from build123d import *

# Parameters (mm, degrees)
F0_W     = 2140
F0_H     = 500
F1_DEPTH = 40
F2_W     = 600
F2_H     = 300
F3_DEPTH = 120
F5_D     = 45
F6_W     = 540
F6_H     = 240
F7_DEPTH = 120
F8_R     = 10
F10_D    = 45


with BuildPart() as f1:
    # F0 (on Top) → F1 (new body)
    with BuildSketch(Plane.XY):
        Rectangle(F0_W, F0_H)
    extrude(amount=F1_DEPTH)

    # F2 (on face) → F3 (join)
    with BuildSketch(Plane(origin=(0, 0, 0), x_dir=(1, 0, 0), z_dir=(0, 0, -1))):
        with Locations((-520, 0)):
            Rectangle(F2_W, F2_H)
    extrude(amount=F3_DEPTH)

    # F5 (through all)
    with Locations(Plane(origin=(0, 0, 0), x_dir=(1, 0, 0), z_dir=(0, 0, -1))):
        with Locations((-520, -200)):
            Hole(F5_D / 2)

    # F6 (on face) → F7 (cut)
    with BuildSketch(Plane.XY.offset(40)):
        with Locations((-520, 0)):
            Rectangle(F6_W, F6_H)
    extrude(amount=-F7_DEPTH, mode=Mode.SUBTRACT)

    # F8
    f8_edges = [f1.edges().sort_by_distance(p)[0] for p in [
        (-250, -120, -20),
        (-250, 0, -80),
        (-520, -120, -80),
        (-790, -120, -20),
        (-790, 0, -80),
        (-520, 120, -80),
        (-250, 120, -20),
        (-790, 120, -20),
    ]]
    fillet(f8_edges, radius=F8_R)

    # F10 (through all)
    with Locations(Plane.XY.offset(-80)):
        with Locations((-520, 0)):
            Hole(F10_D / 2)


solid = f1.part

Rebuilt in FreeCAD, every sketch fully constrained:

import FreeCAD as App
import Part
import Sketcher
from FreeCAD import Vector
Q = App.Units.Quantity


def edges_at(feature, points):
    """Names of the edges that pass closest to the given points."""
    edges = feature.Shape.Edges
    near = lambda p: min(range(len(edges)), key=lambda i: edges[i].distToShape(Part.Vertex(*p))[0])
    return sorted({f"Edge{near(p) + 1}" for p in points})

doc = App.newDocument("Part")
params = doc.addObject("Spreadsheet::Sheet", "Params")
for row, (alias, value) in enumerate([
    ("sketch1_width", "2140 mm"),
    ("sketch1_height", "500 mm"),
    ("pad1_length", "40 mm"),
    ("sketch2_width", "600 mm"),
    ("sketch2_height", "300 mm"),
    ("pad2_length", "120 mm"),
    ("sketch3_diameter", "45 mm"),
    ("hole_diameter", "45 mm"),
    ("sketch4_width", "540 mm"),
    ("sketch4_height", "240 mm"),
    ("pocket1_length", "120 mm"),
    ("fillet_radius", "10 mm"),
    ("sketch5_diameter", "45 mm"),
    ("hole2_diameter", "45 mm"),
], start=1):
    params.set(f"A{row}", alias)
    params.set(f"B{row}", "=" + value)
    params.setAlias(f"B{row}", alias)

body = doc.addObject("PartDesign::Body", "Body")

sketch1 = body.newObject("Sketcher::SketchObject", "Sketch")
sketch1.AttachmentSupport = (doc.getObject("XY_Plane"), [""])
sketch1.MapMode = "FlatFace"
sketch1.addGeometry([
    Part.LineSegment(Vector(-1070, 250, 0), Vector(-1070, -250, 0)),
    Part.LineSegment(Vector(-1070, -250, 0), Vector(1070, -250, 0)),
    Part.LineSegment(Vector(1070, -250, 0), Vector(1070, 250, 0)),
    Part.LineSegment(Vector(1070, 250, 0), Vector(-1070, 250, 0)),
], False)
sketch1.addConstraint([
    Sketcher.Constraint("Coincident", 0, 2, 1, 1),
    Sketcher.Constraint("Coincident", 1, 2, 2, 1),
    Sketcher.Constraint("Coincident", 2, 2, 3, 1),
    Sketcher.Constraint("Coincident", 3, 2, 0, 1),
    Sketcher.Constraint("Vertical", 0),
    Sketcher.Constraint("Horizontal", 1),
    Sketcher.Constraint("Vertical", 2),
    Sketcher.Constraint("Horizontal", 3),
    Sketcher.Constraint("Symmetric", 0, 2, 2, 2, -1, 1),
    Sketcher.Constraint("DistanceX", 1, 1, 1, 2, Q("2140 mm")),
    Sketcher.Constraint("DistanceY", 0, 2, 0, 1, Q("500 mm")),
])
sketch1.setExpression("Constraints[9]", "Params.sketch1_width")
sketch1.setExpression("Constraints[10]", "Params.sketch1_height")
pad1 = body.newObject("PartDesign::Pad", "Pad")
pad1.Profile = sketch1
pad1.setExpression("Length", "Params.pad1_length")

sketch2 = body.newObject("Sketcher::SketchObject", "Sketch001")
sketch2.AttachmentSupport = (doc.getObject("XY_Plane"), [""])
sketch2.MapMode = "FlatFace"
sketch2.addGeometry([
    Part.LineSegment(Vector(-820, -150, 0), Vector(-820, 150, 0)),
    Part.LineSegment(Vector(-820, 150, 0), Vector(-220, 150, 0)),
    Part.LineSegment(Vector(-220, 150, 0), Vector(-220, -150, 0)),
    Part.LineSegment(Vector(-220, -150, 0), Vector(-820, -150, 0)),
], False)
sketch2.addConstraint([
    Sketcher.Constraint("Coincident", 0, 2, 1, 1),
    Sketcher.Constraint("Coincident", 1, 2, 2, 1),
    Sketcher.Constraint("Coincident", 2, 2, 3, 1),
    Sketcher.Constraint("Coincident", 3, 2, 0, 1),
    Sketcher.Constraint("Vertical", 0),
    Sketcher.Constraint("Horizontal", 1),
    Sketcher.Constraint("Vertical", 2),
    Sketcher.Constraint("Horizontal", 3),
    Sketcher.Constraint("DistanceX", 1, 1, 1, 2, Q("600 mm")),
    Sketcher.Constraint("DistanceY", 0, 1, 0, 2, Q("300 mm")),
    Sketcher.Constraint("DistanceX", 0, 2, -1, 1, Q("820 mm")),
    Sketcher.Constraint("DistanceY", -1, 1, 0, 2, Q("150 mm")),
])
sketch2.setExpression("Constraints[8]", "Params.sketch2_width")
sketch2.setExpression("Constraints[9]", "Params.sketch2_height")
pad2 = body.newObject("PartDesign::Pad", "Pad001")
pad2.Profile = sketch2
pad2.setExpression("Length", "Params.pad2_length")
pad2.Reversed = True

sketch3 = body.newObject("Sketcher::SketchObject", "Sketch002")
sketch3.AttachmentSupport = (doc.getObject("XY_Plane"), [""])
sketch3.MapMode = "FlatFace"
sketch3.addGeometry(Part.Circle(Vector(-520, 200, 0), Vector(0, 0, 1), 22.5), False)
sketch3.addConstraint([
    Sketcher.Constraint("Diameter", 0, Q("45 mm")),
    Sketcher.Constraint("DistanceX", 0, 3, -1, 1, Q("520 mm")),
    Sketcher.Constraint("DistanceY", -1, 1, 0, 3, Q("200 mm")),
])
sketch3.setExpression("Constraints[0]", "Params.sketch3_diameter")
doc.recompute()
hole = body.newObject("PartDesign::Hole", "Hole")
hole.Profile = sketch3
hole.ThreadType = "None"
hole.setExpression("Diameter", "Params.hole_diameter")
hole.DepthType = "ThroughAll"
hole.Reversed = True

sketch4 = body.newObject("Sketcher::SketchObject", "Sketch003")
sketch4.AttachmentSupport = (doc.getObject("XY_Plane"), [""])
sketch4.MapMode = "FlatFace"
sketch4.AttachmentOffset = App.Placement(Vector(0, 0, 40), App.Rotation())
sketch4.addGeometry([
    Part.LineSegment(Vector(-790, 120, 0), Vector(-790, -120, 0)),
    Part.LineSegment(Vector(-790, -120, 0), Vector(-250, -120, 0)),
    Part.LineSegment(Vector(-250, -120, 0), Vector(-250, 120, 0)),
    Part.LineSegment(Vector(-250, 120, 0), Vector(-790, 120, 0)),
], False)
sketch4.addConstraint([
    Sketcher.Constraint("Coincident", 0, 2, 1, 1),
    Sketcher.Constraint("Coincident", 1, 2, 2, 1),
    Sketcher.Constraint("Coincident", 2, 2, 3, 1),
    Sketcher.Constraint("Coincident", 3, 2, 0, 1),
    Sketcher.Constraint("Vertical", 0),
    Sketcher.Constraint("Horizontal", 1),
    Sketcher.Constraint("Vertical", 2),
    Sketcher.Constraint("Horizontal", 3),
    Sketcher.Constraint("DistanceX", 1, 1, 1, 2, Q("540 mm")),
    Sketcher.Constraint("DistanceY", 0, 2, 0, 1, Q("240 mm")),
    Sketcher.Constraint("DistanceX", 0, 2, -1, 1, Q("790 mm")),
    Sketcher.Constraint("DistanceY", 0, 2, -1, 1, Q("120 mm")),
])
sketch4.setExpression("Constraints[8]", "Params.sketch4_width")
sketch4.setExpression("Constraints[9]", "Params.sketch4_height")
pocket1 = body.newObject("PartDesign::Pocket", "Pocket")
pocket1.Profile = sketch4
pocket1.setExpression("Length", "Params.pocket1_length")
doc.recompute()

fillet = body.newObject("PartDesign::Fillet", "Fillet")
fillet.Base = (pocket1, edges_at(pocket1, [
    (-250, -120, -20),
    (-250, 0, -80),
    (-520, -120, -80),
    (-790, -120, -20),
    (-790, 0, -80),
    (-520, 120, -80),
    (-250, 120, -20),
    (-790, 120, -20),
]))
fillet.setExpression("Radius", "Params.fillet_radius")

sketch5 = body.newObject("Sketcher::SketchObject", "Sketch004")
sketch5.AttachmentSupport = (doc.getObject("XY_Plane"), [""])
sketch5.MapMode = "FlatFace"
sketch5.AttachmentOffset = App.Placement(Vector(0, 0, -80), App.Rotation())
sketch5.addGeometry(Part.Circle(Vector(-520, 0, 0), Vector(0, 0, 1), 22.5), False)
sketch5.addConstraint([
    Sketcher.Constraint("PointOnObject", 0, 3, -1),
    Sketcher.Constraint("Diameter", 0, Q("45 mm")),
    Sketcher.Constraint("DistanceX", 0, 3, -1, 1, Q("520 mm")),
])
sketch5.setExpression("Constraints[1]", "Params.sketch5_diameter")
doc.recompute()
hole2 = body.newObject("PartDesign::Hole", "Hole001")
hole2.Profile = sketch5
hole2.ThreadType = "None"
hole2.setExpression("Diameter", "Params.hole2_diameter")
hole2.DepthType = "ThroughAll"

doc.recompute()
